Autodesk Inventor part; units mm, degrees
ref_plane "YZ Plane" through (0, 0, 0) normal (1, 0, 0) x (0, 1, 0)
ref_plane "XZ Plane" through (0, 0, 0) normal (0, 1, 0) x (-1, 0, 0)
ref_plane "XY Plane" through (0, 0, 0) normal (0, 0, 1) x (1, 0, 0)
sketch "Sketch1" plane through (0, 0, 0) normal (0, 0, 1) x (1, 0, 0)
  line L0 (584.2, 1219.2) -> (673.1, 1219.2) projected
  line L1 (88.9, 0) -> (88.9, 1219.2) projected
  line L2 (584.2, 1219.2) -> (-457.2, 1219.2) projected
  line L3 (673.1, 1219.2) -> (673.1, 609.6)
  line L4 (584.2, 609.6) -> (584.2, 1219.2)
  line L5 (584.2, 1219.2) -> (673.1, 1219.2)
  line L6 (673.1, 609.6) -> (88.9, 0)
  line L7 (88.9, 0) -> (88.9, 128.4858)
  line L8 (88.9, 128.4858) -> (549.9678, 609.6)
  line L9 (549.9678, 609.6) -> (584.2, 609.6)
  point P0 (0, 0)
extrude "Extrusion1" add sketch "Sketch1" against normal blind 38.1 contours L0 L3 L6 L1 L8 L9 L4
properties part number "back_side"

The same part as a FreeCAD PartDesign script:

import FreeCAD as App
import Part
import Sketcher

V = App.Vector
Q = App.Units.Quantity

doc = App.newDocument("Part")
params = doc.addObject("Spreadsheet::Sheet", "Params")
for row, (alias, value) in enumerate([
    ("sketch1_height", "24 in"),
    ("sketch1_width", "3.5 in"),
    ("pad1_length", "1.5 in"),
], start=1):
    params.set(f"A{row}", alias)
    params.set(f"B{row}", "=" + value)
    params.setAlias(f"B{row}", alias)

body = doc.addObject("PartDesign::Body", "Body")

sketch1 = doc.addObject("Sketcher::SketchObject", "Sketch")
body.addObject(sketch1)
sketch1.AttachmentSupport = (doc.XY_Plane, [""])
sketch1.MapMode = "FlatFace"
sketch1.addGeometry(Part.LineSegment(V(673, 1219, 0), V(584, 1219, 0)), False)
sketch1.addGeometry(Part.LineSegment(V(584, 1219, 0), V(584, 610, 0)), False)
sketch1.addGeometry(Part.LineSegment(V(584, 610, 0), V(550, 610, 0)), False)
sketch1.addGeometry(Part.LineSegment(V(550, 610, 0), V(89, 128, 0)), False)
sketch1.addGeometry(Part.LineSegment(V(89, 128, 0), V(89, 0, 0)), False)
sketch1.addGeometry(Part.LineSegment(V(89, 0, 0), V(673, 610, 0)), False)
sketch1.addGeometry(Part.LineSegment(V(673, 610, 0), V(673, 1219, 0)), False)
sketch1.addConstraint(Sketcher.Constraint("Coincident", 0, 2, 1, 1))
sketch1.addConstraint(Sketcher.Constraint("Coincident", 1, 2, 2, 1))
sketch1.addConstraint(Sketcher.Constraint("Coincident", 2, 2, 3, 1))
sketch1.addConstraint(Sketcher.Constraint("Coincident", 3, 2, 4, 1))
sketch1.addConstraint(Sketcher.Constraint("Coincident", 4, 2, 5, 1))
sketch1.addConstraint(Sketcher.Constraint("Coincident", 5, 2, 6, 1))
sketch1.addConstraint(Sketcher.Constraint("Coincident", 6, 2, 0, 1))
sketch1.addConstraint(Sketcher.Constraint("Horizontal", 0))
sketch1.addConstraint(Sketcher.Constraint("Vertical", 1))
sketch1.addConstraint(Sketcher.Constraint("Horizontal", 2))
sketch1.addConstraint(Sketcher.Constraint("Vertical", 4))
sketch1.addConstraint(Sketcher.Constraint("Vertical", 6))
sketch1.addConstraint(Sketcher.Constraint("PointOnObject", 4, 2, -1))
sketch1.addConstraint(Sketcher.Constraint("Parallel", 3, 5))
sketch1.addConstraint(Sketcher.Constraint("Horizontal", 2, 2, 5, 2))
sketch1.addConstraint(Sketcher.Constraint("DistanceY", 1, 2, 1, 1, Q("24 in")))
sketch1.addConstraint(Sketcher.Constraint("DistanceX", 0, 2, 0, 1, Q("3.5 in")))
sketch1.addConstraint(Sketcher.Constraint("DistanceX", -1, 1, 0, 2, Q("23 in")))
sketch1.addConstraint(Sketcher.Constraint("DistanceY", -1, 1, 0, 2, Q("48 in")))
sketch1.addConstraint(Sketcher.Constraint("DistanceX", 3, 2, 5, 2, Q("23 in")))
sketch1.addConstraint(Sketcher.Constraint("DistanceY", 4, 2, 4, 1, Q("5.0585 in")))
sketch1.setExpression("Constraints[15]", "Params.sketch1_height")
sketch1.setExpression("Constraints[16]", "Params.sketch1_width")
pad1 = doc.addObject("PartDesign::Pad", "Pad")
body.addObject(pad1)
pad1.Profile = sketch1
pad1.setExpression("Length", "Params.pad1_length")
pad1.Reversed = True

doc.recompute()
